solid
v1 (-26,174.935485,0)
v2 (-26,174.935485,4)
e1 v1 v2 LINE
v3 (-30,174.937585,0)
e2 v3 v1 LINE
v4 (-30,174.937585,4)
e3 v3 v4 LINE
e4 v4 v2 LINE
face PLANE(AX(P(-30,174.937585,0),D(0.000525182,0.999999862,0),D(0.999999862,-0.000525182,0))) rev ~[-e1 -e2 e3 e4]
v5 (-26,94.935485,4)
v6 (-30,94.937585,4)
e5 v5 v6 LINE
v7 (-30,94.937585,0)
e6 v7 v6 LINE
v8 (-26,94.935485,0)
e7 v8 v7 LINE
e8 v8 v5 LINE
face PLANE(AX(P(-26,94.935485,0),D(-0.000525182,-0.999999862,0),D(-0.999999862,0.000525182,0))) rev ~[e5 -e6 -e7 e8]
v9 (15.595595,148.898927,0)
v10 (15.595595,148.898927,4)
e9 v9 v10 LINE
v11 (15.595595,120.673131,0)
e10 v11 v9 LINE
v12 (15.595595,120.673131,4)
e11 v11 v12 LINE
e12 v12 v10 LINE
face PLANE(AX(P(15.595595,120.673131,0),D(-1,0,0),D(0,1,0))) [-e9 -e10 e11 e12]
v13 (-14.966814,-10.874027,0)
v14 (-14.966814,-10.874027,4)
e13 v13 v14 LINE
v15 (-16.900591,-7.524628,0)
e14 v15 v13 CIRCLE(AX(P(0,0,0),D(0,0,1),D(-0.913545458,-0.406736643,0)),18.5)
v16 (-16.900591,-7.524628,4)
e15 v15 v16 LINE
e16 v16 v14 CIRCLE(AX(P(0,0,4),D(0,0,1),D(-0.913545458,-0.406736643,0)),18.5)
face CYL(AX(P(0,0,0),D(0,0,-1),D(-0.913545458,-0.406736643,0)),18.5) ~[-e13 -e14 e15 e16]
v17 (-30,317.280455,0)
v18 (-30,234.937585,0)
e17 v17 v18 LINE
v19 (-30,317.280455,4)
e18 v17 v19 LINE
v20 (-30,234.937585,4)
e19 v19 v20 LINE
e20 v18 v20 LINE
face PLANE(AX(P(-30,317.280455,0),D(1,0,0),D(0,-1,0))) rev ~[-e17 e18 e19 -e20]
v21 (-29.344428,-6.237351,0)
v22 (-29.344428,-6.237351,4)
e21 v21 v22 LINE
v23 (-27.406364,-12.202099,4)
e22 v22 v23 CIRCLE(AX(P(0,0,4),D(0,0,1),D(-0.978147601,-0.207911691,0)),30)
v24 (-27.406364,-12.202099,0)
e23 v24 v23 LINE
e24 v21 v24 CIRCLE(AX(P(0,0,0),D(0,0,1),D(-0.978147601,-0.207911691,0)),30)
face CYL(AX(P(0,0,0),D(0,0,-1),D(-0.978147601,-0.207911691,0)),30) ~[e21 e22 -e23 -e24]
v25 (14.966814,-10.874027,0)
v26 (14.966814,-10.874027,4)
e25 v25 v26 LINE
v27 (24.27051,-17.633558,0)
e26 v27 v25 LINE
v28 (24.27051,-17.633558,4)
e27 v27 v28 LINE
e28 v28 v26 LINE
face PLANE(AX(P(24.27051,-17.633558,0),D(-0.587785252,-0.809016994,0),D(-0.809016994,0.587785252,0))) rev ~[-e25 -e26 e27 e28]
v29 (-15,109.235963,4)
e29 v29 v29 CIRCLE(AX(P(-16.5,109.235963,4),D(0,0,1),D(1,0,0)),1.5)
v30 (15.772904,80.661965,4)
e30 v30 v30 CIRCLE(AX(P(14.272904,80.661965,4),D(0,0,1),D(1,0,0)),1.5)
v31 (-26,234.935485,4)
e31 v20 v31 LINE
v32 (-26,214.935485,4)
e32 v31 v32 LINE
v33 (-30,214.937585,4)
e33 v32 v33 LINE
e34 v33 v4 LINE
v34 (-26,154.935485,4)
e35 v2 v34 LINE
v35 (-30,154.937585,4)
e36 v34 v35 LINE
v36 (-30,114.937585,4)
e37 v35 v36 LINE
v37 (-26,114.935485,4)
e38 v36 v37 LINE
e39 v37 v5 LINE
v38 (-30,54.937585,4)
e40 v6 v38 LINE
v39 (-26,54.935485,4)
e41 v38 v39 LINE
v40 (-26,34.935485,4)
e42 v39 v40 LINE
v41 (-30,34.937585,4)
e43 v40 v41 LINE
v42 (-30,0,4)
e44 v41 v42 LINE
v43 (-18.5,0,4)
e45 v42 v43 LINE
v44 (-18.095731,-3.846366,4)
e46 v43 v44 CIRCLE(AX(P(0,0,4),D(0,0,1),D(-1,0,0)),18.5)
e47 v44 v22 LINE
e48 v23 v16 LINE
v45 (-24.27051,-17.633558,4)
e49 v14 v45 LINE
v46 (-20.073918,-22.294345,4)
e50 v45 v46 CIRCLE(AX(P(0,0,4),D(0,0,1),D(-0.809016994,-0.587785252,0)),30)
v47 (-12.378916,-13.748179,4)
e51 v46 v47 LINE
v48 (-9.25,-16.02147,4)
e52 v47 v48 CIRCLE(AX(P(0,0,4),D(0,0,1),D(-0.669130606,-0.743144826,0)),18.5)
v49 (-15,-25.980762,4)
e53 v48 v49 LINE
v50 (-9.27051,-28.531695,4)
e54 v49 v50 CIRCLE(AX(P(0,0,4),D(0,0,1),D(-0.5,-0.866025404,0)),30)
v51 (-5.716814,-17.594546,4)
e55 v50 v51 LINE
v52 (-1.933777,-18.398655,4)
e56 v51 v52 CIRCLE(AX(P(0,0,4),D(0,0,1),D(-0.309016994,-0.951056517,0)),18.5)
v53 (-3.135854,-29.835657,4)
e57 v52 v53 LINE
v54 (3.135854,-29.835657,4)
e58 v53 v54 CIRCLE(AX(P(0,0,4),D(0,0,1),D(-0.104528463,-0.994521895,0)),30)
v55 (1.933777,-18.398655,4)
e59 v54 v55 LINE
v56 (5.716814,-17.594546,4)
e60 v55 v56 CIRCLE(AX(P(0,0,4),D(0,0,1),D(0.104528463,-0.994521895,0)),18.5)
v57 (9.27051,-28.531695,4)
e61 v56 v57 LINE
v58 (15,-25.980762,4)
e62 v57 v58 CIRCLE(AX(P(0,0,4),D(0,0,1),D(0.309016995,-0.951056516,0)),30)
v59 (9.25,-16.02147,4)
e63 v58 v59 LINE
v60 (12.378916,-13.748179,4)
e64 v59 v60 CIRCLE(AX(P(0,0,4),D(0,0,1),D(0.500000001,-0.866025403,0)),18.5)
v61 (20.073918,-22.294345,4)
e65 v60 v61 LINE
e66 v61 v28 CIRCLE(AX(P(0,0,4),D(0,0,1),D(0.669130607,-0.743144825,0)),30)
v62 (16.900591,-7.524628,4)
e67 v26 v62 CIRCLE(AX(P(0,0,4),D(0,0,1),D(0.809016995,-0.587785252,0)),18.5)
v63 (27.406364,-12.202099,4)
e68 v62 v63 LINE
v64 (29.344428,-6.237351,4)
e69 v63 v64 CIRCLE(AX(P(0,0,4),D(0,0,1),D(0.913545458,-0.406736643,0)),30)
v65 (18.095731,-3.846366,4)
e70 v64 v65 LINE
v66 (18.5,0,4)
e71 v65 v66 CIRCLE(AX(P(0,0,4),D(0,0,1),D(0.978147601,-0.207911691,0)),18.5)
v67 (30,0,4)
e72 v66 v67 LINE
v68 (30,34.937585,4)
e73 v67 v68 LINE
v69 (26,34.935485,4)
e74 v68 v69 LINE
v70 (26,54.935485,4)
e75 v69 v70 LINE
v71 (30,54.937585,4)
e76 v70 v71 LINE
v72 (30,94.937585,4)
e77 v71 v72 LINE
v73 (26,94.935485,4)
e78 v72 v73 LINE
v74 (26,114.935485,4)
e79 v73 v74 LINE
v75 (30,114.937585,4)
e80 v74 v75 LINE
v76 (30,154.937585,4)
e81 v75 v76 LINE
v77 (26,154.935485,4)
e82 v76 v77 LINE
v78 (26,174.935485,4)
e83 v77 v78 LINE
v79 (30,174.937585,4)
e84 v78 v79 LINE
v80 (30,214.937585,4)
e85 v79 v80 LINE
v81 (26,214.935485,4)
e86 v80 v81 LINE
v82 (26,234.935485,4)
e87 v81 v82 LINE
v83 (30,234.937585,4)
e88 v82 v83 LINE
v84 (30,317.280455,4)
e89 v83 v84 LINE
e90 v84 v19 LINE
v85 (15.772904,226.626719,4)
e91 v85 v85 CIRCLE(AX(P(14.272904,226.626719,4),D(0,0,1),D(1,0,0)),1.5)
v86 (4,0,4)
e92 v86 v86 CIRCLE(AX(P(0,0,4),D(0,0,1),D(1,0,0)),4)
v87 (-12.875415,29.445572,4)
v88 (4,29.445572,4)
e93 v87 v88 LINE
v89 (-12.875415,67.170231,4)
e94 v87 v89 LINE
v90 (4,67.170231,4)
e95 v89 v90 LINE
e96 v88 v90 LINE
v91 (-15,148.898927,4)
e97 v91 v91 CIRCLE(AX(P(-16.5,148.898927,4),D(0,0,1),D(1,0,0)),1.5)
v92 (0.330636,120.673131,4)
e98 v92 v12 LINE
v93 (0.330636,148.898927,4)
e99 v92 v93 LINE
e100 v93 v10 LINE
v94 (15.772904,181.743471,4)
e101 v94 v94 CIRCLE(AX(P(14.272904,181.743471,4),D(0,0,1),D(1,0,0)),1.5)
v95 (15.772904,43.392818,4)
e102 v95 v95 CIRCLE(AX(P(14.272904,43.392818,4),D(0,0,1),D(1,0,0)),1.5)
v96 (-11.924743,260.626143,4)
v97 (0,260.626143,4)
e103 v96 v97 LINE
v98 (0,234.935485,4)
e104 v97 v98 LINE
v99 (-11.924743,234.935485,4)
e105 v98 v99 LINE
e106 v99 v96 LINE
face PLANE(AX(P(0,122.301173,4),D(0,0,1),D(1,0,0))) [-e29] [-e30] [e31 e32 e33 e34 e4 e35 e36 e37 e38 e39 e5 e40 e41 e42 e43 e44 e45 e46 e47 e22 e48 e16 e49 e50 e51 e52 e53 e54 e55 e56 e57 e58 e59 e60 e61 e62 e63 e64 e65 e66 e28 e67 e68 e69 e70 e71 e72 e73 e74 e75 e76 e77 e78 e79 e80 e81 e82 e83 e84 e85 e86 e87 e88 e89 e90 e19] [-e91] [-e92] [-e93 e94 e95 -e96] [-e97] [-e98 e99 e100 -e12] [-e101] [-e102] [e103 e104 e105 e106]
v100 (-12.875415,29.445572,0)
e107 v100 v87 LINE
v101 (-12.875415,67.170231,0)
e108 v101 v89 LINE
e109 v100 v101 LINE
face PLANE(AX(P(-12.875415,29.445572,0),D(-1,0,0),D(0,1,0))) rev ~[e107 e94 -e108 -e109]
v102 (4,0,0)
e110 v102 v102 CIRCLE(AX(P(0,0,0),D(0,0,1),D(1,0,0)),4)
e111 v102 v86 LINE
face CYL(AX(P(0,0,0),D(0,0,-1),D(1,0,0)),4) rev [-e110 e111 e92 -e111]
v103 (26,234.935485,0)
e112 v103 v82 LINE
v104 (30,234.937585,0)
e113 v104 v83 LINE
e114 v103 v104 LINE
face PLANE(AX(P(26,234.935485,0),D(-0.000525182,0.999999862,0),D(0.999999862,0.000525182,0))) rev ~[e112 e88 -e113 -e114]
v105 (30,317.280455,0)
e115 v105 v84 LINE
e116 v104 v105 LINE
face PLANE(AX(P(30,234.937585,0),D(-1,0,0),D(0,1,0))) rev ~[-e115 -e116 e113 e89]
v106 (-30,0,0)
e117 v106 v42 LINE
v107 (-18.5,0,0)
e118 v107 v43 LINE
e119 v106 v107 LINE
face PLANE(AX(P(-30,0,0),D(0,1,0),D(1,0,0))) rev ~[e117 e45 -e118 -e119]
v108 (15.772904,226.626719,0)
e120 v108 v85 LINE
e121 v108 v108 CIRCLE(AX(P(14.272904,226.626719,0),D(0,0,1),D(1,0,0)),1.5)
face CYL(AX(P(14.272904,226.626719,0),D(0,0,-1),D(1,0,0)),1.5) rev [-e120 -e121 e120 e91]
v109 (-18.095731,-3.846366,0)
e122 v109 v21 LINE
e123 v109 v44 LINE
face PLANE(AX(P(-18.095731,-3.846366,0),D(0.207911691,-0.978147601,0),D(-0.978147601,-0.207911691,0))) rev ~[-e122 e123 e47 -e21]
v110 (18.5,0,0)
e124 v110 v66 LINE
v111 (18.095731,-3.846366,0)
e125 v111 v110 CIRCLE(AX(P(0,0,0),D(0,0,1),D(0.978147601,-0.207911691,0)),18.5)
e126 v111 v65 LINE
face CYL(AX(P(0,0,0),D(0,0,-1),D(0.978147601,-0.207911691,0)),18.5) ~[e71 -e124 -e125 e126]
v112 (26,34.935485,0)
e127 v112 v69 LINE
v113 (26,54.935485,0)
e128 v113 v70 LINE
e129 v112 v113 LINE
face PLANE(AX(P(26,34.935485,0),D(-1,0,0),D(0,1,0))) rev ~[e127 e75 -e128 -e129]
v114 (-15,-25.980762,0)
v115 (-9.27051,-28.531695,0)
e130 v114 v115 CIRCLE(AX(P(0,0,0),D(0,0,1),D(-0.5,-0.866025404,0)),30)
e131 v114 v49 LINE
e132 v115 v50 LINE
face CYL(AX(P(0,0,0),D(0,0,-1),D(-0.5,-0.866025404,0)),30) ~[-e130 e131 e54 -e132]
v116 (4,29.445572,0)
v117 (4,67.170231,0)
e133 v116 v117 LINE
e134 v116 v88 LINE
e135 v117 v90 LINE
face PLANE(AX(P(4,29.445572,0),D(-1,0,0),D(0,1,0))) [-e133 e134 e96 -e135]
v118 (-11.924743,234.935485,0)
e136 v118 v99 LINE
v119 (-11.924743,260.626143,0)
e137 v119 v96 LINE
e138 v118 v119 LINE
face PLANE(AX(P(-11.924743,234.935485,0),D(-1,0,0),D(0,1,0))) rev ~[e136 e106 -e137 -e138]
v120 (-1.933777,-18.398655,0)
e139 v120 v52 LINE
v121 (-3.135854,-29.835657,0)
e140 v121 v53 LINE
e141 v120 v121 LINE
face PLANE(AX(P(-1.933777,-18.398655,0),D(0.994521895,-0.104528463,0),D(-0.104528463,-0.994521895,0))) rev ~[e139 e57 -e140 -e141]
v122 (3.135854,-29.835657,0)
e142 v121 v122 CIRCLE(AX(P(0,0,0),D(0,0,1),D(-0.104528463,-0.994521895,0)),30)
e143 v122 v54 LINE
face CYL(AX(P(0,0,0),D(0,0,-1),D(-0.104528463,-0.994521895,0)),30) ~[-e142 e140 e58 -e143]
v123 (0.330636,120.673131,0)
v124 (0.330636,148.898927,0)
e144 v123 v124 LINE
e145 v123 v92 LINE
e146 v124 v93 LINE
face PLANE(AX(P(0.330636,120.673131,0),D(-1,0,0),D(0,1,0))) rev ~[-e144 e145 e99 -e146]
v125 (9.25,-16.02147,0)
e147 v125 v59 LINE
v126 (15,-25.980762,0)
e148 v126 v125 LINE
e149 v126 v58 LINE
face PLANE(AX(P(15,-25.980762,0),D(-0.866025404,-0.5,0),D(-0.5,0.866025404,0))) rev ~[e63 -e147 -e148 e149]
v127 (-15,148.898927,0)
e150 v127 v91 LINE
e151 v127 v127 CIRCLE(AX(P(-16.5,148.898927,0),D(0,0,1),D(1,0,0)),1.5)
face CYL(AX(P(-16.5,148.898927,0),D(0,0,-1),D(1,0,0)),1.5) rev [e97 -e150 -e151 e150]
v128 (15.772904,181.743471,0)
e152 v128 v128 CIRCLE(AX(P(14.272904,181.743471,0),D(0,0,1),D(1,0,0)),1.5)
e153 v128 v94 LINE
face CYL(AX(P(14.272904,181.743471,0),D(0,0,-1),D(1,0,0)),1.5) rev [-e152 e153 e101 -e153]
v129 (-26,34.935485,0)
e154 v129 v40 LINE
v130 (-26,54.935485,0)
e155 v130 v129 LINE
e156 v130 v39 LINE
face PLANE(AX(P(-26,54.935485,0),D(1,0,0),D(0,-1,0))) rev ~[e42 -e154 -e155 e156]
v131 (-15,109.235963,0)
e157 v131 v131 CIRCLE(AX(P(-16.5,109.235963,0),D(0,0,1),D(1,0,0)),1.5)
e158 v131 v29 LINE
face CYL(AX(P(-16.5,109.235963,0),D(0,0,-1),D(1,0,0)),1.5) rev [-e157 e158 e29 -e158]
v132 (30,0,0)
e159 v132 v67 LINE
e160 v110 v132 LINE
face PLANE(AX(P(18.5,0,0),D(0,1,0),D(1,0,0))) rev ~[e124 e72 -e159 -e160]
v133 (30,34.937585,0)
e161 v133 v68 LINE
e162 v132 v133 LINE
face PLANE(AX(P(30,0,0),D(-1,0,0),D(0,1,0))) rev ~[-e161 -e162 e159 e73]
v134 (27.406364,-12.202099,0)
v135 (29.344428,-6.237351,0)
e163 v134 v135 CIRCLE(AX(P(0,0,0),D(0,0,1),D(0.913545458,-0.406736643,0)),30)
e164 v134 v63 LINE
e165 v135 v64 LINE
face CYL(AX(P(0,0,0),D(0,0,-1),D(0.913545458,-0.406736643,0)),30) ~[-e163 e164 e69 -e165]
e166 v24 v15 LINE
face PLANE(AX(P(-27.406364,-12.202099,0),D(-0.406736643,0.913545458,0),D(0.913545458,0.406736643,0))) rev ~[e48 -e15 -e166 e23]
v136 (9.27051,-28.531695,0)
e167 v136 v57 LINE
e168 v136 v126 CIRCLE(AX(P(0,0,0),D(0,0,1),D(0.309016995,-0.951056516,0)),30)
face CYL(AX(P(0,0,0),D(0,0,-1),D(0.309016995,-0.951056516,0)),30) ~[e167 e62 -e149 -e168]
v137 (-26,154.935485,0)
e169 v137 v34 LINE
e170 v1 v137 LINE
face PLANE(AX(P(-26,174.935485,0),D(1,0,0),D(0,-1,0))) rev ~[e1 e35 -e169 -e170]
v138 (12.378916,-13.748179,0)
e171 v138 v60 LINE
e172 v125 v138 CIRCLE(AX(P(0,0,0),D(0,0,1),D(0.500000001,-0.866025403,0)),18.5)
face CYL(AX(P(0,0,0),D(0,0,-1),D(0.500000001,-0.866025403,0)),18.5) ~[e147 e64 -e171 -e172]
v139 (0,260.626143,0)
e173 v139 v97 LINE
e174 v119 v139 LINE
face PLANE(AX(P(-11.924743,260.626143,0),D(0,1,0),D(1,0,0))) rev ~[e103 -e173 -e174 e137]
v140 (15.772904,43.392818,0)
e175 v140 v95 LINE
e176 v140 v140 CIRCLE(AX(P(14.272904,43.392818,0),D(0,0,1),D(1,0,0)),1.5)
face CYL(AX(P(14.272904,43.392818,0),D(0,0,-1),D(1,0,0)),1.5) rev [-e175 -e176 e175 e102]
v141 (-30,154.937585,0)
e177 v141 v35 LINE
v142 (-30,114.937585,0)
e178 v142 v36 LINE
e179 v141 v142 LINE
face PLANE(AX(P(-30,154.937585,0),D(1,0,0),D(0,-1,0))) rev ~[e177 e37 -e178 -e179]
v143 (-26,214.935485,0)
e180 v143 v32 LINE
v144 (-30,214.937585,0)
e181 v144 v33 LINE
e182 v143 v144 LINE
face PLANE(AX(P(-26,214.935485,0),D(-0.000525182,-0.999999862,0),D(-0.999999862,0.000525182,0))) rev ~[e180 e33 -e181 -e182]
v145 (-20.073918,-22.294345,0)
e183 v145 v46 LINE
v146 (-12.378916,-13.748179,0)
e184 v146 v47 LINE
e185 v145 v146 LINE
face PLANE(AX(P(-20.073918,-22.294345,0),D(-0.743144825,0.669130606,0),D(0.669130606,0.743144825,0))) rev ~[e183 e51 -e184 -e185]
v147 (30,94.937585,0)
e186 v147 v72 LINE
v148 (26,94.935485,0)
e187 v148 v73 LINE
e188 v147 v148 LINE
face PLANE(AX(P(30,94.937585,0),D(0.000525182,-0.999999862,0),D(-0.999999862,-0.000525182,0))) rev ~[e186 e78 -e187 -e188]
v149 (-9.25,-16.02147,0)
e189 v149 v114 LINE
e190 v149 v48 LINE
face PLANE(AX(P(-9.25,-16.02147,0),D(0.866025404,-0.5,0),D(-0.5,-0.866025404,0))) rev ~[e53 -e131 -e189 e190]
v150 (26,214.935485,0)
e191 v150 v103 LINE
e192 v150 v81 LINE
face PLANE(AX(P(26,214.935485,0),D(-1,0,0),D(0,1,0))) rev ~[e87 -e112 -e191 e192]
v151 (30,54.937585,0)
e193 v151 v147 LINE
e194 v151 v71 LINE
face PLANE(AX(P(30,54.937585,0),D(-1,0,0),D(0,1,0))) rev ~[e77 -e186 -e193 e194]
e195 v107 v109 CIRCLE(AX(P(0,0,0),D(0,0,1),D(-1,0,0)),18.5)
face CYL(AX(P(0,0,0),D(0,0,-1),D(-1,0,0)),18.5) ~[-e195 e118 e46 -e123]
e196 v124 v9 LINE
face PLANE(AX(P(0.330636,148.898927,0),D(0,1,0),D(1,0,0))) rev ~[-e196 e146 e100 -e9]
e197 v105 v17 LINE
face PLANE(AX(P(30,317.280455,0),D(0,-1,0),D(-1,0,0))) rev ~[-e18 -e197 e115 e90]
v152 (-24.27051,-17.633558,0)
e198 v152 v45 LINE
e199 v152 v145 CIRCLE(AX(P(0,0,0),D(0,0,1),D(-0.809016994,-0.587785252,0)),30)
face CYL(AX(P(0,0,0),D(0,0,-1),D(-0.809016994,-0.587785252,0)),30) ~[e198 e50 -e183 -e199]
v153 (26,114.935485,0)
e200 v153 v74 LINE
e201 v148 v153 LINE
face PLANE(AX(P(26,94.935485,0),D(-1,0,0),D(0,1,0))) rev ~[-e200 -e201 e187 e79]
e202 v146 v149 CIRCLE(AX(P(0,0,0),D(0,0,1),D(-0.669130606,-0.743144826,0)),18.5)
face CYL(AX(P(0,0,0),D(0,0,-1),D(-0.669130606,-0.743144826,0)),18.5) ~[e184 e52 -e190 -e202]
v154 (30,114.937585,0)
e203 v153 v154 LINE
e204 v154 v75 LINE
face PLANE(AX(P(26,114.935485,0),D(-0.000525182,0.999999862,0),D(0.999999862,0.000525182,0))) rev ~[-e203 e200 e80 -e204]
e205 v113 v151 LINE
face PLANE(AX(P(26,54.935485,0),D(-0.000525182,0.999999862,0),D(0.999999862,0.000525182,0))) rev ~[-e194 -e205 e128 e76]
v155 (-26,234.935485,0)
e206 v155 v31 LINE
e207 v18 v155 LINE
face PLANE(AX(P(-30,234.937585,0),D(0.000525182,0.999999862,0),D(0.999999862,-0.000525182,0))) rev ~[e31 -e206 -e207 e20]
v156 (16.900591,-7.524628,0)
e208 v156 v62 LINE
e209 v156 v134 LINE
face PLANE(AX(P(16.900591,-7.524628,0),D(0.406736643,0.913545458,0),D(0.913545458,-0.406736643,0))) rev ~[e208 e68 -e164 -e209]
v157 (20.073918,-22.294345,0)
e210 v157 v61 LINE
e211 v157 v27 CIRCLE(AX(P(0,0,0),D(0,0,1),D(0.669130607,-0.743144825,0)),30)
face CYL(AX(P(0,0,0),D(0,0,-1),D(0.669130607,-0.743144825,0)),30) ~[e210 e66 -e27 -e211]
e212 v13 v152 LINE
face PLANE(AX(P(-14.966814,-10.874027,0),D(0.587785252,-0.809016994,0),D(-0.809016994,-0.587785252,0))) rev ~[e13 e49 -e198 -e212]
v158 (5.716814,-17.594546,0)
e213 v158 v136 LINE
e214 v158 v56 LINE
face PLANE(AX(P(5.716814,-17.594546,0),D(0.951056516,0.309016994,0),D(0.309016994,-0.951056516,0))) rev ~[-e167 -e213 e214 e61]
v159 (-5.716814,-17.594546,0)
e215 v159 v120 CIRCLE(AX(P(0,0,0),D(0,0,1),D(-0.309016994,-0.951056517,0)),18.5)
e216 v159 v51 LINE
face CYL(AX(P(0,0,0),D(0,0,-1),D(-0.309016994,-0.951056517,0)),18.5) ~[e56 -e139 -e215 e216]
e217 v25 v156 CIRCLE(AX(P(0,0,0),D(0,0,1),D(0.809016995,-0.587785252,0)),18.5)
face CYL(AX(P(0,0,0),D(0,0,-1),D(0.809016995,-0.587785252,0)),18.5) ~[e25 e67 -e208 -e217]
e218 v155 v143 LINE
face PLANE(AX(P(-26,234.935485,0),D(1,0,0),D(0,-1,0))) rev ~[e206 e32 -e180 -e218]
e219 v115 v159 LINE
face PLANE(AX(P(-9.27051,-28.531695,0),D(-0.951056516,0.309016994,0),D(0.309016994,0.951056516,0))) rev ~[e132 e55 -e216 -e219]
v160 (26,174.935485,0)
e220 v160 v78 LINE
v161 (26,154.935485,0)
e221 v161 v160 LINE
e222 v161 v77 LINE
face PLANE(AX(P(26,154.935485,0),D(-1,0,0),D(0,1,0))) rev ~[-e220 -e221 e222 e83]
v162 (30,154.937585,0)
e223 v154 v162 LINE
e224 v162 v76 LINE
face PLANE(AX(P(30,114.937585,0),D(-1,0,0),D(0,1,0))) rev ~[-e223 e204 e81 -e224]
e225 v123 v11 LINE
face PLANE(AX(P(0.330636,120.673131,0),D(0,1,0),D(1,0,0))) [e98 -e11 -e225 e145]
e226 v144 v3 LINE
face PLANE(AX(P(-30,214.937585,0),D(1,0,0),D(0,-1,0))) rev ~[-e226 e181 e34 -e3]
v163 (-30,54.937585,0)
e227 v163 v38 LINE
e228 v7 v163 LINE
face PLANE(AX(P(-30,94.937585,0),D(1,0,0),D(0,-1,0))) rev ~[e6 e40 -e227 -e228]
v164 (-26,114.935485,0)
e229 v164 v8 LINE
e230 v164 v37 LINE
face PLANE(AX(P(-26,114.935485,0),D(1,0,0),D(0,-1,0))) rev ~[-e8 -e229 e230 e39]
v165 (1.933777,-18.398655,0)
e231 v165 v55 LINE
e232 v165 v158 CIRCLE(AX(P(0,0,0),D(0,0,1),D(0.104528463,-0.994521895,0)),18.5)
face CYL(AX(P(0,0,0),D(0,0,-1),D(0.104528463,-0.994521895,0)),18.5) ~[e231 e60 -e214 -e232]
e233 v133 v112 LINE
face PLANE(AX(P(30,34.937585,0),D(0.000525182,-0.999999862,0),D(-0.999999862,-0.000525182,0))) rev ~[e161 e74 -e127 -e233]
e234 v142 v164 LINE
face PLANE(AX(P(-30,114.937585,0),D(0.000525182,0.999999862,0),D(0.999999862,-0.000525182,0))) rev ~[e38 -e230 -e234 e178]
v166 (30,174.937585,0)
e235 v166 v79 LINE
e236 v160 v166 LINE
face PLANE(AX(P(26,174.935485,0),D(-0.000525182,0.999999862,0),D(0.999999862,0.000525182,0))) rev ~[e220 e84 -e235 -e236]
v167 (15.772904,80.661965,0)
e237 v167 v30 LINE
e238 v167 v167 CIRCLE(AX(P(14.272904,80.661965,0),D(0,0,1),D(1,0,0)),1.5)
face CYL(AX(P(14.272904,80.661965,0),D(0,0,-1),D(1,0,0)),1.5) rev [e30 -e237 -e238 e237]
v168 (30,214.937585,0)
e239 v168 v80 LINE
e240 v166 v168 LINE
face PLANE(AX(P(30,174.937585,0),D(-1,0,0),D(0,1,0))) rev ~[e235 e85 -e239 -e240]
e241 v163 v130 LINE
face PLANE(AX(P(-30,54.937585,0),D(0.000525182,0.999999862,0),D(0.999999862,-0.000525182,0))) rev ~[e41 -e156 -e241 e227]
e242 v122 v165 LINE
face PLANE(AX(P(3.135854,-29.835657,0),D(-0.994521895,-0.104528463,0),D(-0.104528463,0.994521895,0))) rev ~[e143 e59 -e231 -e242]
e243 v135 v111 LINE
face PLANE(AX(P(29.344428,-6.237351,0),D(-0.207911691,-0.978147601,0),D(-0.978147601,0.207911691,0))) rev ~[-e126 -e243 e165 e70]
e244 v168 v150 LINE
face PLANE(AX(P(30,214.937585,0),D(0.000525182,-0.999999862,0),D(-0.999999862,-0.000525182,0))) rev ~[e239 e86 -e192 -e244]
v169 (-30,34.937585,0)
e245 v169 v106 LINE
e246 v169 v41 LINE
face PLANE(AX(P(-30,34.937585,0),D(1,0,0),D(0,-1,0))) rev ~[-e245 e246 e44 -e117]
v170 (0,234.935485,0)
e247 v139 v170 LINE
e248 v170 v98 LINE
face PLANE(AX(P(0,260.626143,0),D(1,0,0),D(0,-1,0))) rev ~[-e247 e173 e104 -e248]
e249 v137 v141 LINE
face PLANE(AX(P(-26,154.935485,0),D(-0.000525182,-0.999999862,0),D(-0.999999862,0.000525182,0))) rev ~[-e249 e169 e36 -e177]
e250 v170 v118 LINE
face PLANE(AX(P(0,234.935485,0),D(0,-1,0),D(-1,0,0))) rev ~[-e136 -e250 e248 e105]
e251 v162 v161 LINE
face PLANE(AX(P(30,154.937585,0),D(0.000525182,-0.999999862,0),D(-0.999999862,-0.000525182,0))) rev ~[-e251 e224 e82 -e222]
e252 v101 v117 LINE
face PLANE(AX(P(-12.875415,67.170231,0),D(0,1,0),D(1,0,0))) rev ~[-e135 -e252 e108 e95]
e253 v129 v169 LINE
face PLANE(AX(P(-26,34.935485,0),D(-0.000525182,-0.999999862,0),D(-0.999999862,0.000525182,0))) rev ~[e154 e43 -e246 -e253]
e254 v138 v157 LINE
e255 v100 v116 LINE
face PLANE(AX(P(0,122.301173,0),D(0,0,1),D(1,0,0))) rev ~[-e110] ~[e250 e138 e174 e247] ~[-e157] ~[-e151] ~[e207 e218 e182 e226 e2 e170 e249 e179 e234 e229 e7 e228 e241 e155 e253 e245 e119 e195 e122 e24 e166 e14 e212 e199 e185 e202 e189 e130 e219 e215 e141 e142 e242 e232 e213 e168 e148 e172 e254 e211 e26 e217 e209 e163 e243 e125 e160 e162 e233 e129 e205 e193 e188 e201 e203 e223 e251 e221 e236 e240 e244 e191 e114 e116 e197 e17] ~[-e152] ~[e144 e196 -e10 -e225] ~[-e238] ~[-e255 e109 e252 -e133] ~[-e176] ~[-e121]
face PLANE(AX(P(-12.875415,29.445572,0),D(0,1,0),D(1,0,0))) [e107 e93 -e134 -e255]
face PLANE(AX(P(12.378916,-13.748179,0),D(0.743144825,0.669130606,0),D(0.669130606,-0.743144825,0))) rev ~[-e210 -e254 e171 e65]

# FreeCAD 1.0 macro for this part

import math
import FreeCAD as App
import Part
import Sketcher
from FreeCAD import Vector
Q = App.Units.Quantity


def add_polygon(sketch, points):
    """Adds a closed chain of lines whose ends are joined by coincident constraints."""
    first, n = sketch.GeometryCount, len(points)
    for a, b in zip(points, points[1:] + points[:1]):
        sketch.addGeometry(Part.LineSegment(App.Vector(*a, 0), App.Vector(*b, 0)), False)
    for i in range(n):
        sketch.addConstraint(Sketcher.Constraint("Coincident", first + i, 2, first + (i + 1) % n, 1))

doc = App.newDocument("Part")
body = doc.addObject("PartDesign::Body", "Body")

sketch1 = doc.addObject("Sketcher::SketchObject", "Sketch")
body.addObject(sketch1)
sketch1.AttachmentSupport = (doc.XY_Plane, [""])
sketch1.MapMode = "FlatFace"
sketch1.addGeometry(Part.LineSegment(Vector(-30, 34.9, 0), Vector(-30, 0, 0)), False)
sketch1.addGeometry(Part.LineSegment(Vector(-30, 0, 0), Vector(-18.5, 0, 0)), False)
sketch1.addGeometry(Part.ArcOfCircle(Part.Circle(Vector(0, 0, 0), Vector(0, 0, 1), 18.5), math.radians(-180), math.radians(-168)), False)
sketch1.addGeometry(Part.LineSegment(Vector(-18.1, -3.8, 0), Vector(-29.3, -6.2, 0)), False)
sketch1.addGeometry(Part.ArcOfCircle(Part.Circle(Vector(0, 0, 0), Vector(0, 0, 1), 30), math.radians(-168), math.radians(-156)), False)
sketch1.addGeometry(Part.LineSegment(Vector(-27.4, -12.2, 0), Vector(-16.9, -7.5, 0)), False)
sketch1.addGeometry(Part.ArcOfCircle(Part.Circle(Vector(0, 0, 0), Vector(0, 0, 1), 18.5), math.radians(-156), math.radians(-144)), False)
sketch1.addGeometry(Part.LineSegment(Vector(-15, -10.9, 0), Vector(-24.3, -17.6, 0)), False)
sketch1.addGeometry(Part.ArcOfCircle(Part.Circle(Vector(0, 0, 0), Vector(0, 0, 1), 30), math.radians(-144), math.radians(-132)), False)
sketch1.addGeometry(Part.LineSegment(Vector(-20.1, -22.3, 0), Vector(-12.4, -13.7, 0)), False)
sketch1.addGeometry(Part.ArcOfCircle(Part.Circle(Vector(0, 0, 0), Vector(0, 0, 1), 18.5), math.radians(-132), math.radians(-120)), False)
sketch1.addGeometry(Part.LineSegment(Vector(-9.3, -16, 0), Vector(-15, -26, 0)), False)
sketch1.addGeometry(Part.ArcOfCircle(Part.Circle(Vector(0, 0, 0), Vector(0, 0, 1), 30), math.radians(-120), math.radians(-108)), False)
sketch1.addGeometry(Part.LineSegment(Vector(-9.3, -28.5, 0), Vector(-5.7, -17.6, 0)), False)
sketch1.addGeometry(Part.ArcOfCircle(Part.Circle(Vector(0, 0, 0), Vector(0, 0, 1), 18.5), math.radians(-108), math.radians(-96)), False)
sketch1.addGeometry(Part.LineSegment(Vector(-1.9, -18.4, 0), Vector(-3.1, -29.8, 0)), False)
sketch1.addGeometry(Part.ArcOfCircle(Part.Circle(Vector(0, 0, 0), Vector(0, 0, 1), 30), math.radians(-96), math.radians(-84)), False)
sketch1.addGeometry(Part.LineSegment(Vector(3.1, -29.8, 0), Vector(1.9, -18.4, 0)), False)
sketch1.addGeometry(Part.ArcOfCircle(Part.Circle(Vector(0, 0, 0), Vector(0, 0, 1), 18.5), math.radians(-84), math.radians(-72)), False)
sketch1.addGeometry(Part.LineSegment(Vector(5.7, -17.6, 0), Vector(9.3, -28.5, 0)), False)
sketch1.addGeometry(Part.ArcOfCircle(Part.Circle(Vector(0, 0, 0), Vector(0, 0, 1), 30), math.radians(-72), math.radians(-60)), False)
sketch1.addGeometry(Part.LineSegment(Vector(15, -26, 0), Vector(9.2, -16, 0)), False)
sketch1.addGeometry(Part.ArcOfCircle(Part.Circle(Vector(0, 0, 0), Vector(0, 0, 1), 18.5), math.radians(-60), math.radians(-48)), False)
sketch1.addGeometry(Part.LineSegment(Vector(12.4, -13.7, 0), Vector(20.1, -22.3, 0)), False)
sketch1.addGeometry(Part.ArcOfCircle(Part.Circle(Vector(0, 0, 0), Vector(0, 0, 1), 30), math.radians(-48), math.radians(-36)), False)
sketch1.addGeometry(Part.LineSegment(Vector(24.3, -17.6, 0), Vector(15, -10.9, 0)), False)
sketch1.addGeometry(Part.ArcOfCircle(Part.Circle(Vector(0, 0, 0), Vector(0, 0, 1), 18.5), math.radians(-36), math.radians(-24)), False)
sketch1.addGeometry(Part.LineSegment(Vector(16.9, -7.5, 0), Vector(27.4, -12.2, 0)), False)
sketch1.addGeometry(Part.ArcOfCircle(Part.Circle(Vector(0, 0, 0), Vector(0, 0, 1), 30), math.radians(-24), math.radians(-12)), False)
sketch1.addGeometry(Part.LineSegment(Vector(29.3, -6.2, 0), Vector(18.1, -3.8, 0)), False)
sketch1.addGeometry(Part.ArcOfCircle(Part.Circle(Vector(0, 0, 0), Vector(0, 0, 1), 18.5), math.radians(-12), math.radians(0)), False)
sketch1.addGeometry(Part.LineSegment(Vector(18.5, 0, 0), Vector(30, 0, 0)), False)
sketch1.addGeometry(Part.LineSegment(Vector(30, 0, 0), Vector(30, 34.9, 0)), False)
sketch1.addGeometry(Part.LineSegment(Vector(30, 34.9, 0), Vector(26, 34.9, 0)), False)
sketch1.addGeometry(Part.LineSegment(Vector(26, 34.9, 0), Vector(26, 54.9, 0)), False)
sketch1.addGeometry(Part.LineSegment(Vector(26, 54.9, 0), Vector(30, 54.9, 0)), False)
sketch1.addGeometry(Part.LineSegment(Vector(30, 54.9, 0), Vector(30, 94.9, 0)), False)
sketch1.addGeometry(Part.LineSegment(Vector(30, 94.9, 0), Vector(26, 94.9, 0)), False)
sketch1.addGeometry(Part.LineSegment(Vector(26, 94.9, 0), Vector(26, 114.9, 0)), False)
sketch1.addGeometry(Part.LineSegment(Vector(26, 114.9, 0), Vector(30, 114.9, 0)), False)
sketch1.addGeometry(Part.LineSegment(Vector(30, 114.9, 0), Vector(30, 154.9, 0)), False)
sketch1.addGeometry(Part.LineSegment(Vector(30, 154.9, 0), Vector(26, 154.9, 0)), False)
sketch1.addGeometry(Part.LineSegment(Vector(26, 154.9, 0), Vector(26, 174.9, 0)), False)
sketch1.addGeometry(Part.LineSegment(Vector(26, 174.9, 0), Vector(30, 174.9, 0)), False)
sketch1.addGeometry(Part.LineSegment(Vector(30, 174.9, 0), Vector(30, 214.9, 0)), False)
sketch1.addGeometry(Part.LineSegment(Vector(30, 214.9, 0), Vector(26, 214.9, 0)), False)
sketch1.addGeometry(Part.LineSegment(Vector(26, 214.9, 0), Vector(26, 234.9, 0)), False)
sketch1.addGeometry(Part.LineSegment(Vector(26, 234.9, 0), Vector(30, 234.9, 0)), False)
sketch1.addGeometry(Part.LineSegment(Vector(30, 234.9, 0), Vector(30, 317.3, 0)), False)
sketch1.addGeometry(Part.LineSegment(Vector(30, 317.3, 0), Vector(-30, 317.3, 0)), False)
sketch1.addGeometry(Part.LineSegment(Vector(-30, 317.3, 0), Vector(-30, 234.9, 0)), False)
sketch1.addGeometry(Part.LineSegment(Vector(-30, 234.9, 0), Vector(-26, 234.9, 0)), False)
sketch1.addGeometry(Part.LineSegment(Vector(-26, 234.9, 0), Vector(-26, 214.9, 0)), False)
sketch1.addGeometry(Part.LineSegment(Vector(-26, 214.9, 0), Vector(-30, 214.9, 0)), False)
sketch1.addGeometry(Part.LineSegment(Vector(-30, 214.9, 0), Vector(-30, 174.9, 0)), False)
sketch1.addGeometry(Part.LineSegment(Vector(-30, 174.9, 0), Vector(-26, 174.9, 0)), False)
sketch1.addGeometry(Part.LineSegment(Vector(-26, 174.9, 0), Vector(-26, 154.9, 0)), False)
sketch1.addGeometry(Part.LineSegment(Vector(-26, 154.9, 0), Vector(-30, 154.9, 0)), False)
sketch1.addGeometry(Part.LineSegment(Vector(-30, 154.9, 0), Vector(-30, 114.9, 0)), False)
sketch1.addGeometry(Part.LineSegment(Vector(-30, 114.9, 0), Vector(-26, 114.9, 0)), False)
sketch1.addGeometry(Part.LineSegment(Vector(-26, 114.9, 0), Vector(-26, 94.9, 0)), False)
sketch1.addGeometry(Part.LineSegment(Vector(-26, 94.9, 0), Vector(-30, 94.9, 0)), False)
sketch1.addGeometry(Part.LineSegment(Vector(-30, 94.9, 0), Vector(-30, 54.9, 0)), False)
sketch1.addGeometry(Part.LineSegment(Vector(-30, 54.9, 0), Vector(-26, 54.9, 0)), False)
sketch1.addGeometry(Part.LineSegment(Vector(-26, 54.9, 0), Vector(-26, 34.9, 0)), False)
sketch1.addGeometry(Part.LineSegment(Vector(-26, 34.9, 0), Vector(-30, 34.9, 0)), False)
add_polygon(sketch1, [(4, 29.4), (-12.9, 29.4), (-12.9, 67.2), (4, 67.2)])
sketch1.addGeometry(Part.Circle(Vector(-16.5, 109.2, 0), Vector(0, 0, 1), 1.5), False)
sketch1.addGeometry(Part.Circle(Vector(0, 0, 0), Vector(0, 0, 1), 4), False)
sketch1.addGeometry(Part.Circle(Vector(14.3, 43.4, 0), Vector(0, 0, 1), 1.5), False)
sketch1.addGeometry(Part.Circle(Vector(14.3, 80.7, 0), Vector(0, 0, 1), 1.5), False)
sketch1.addGeometry(Part.Circle(Vector(-16.5, 148.9, 0), Vector(0, 0, 1), 1.5), False)
add_polygon(sketch1, [(-11.9, 234.9), (-11.9, 260.6), (0, 260.6), (0, 234.9)])
add_polygon(sketch1, [(15.6, 120.7), (0.3, 120.7), (0.3, 148.9), (15.6, 148.9)])
sketch1.addGeometry(Part.Circle(Vector(14.3, 181.7, 0), Vector(0, 0, 1), 1.5), False)
sketch1.addGeometry(Part.Circle(Vector(14.3, 226.6, 0), Vector(0, 0, 1), 1.5), False)
sketch1.addConstraint(Sketcher.Constraint("Coincident", 0, 2, 1, 1))
sketch1.addConstraint(Sketcher.Constraint("Coincident", 1, 2, 2, 1))
sketch1.addConstraint(Sketcher.Constraint("Coincident", 2, 2, 3, 1))
sketch1.addConstraint(Sketcher.Constraint("Coincident", 3, 2, 4, 1))
sketch1.addConstraint(Sketcher.Constraint("Coincident", 4, 2, 5, 1))
sketch1.addConstraint(Sketcher.Constraint("Coincident", 5, 2, 6, 1))
sketch1.addConstraint(Sketcher.Constraint("Coincident", 6, 2, 7, 1))
sketch1.addConstraint(Sketcher.Constraint("Coincident", 7, 2, 8, 1))
sketch1.addConstraint(Sketcher.Constraint("Coincident", 8, 2, 9, 1))
sketch1.addConstraint(Sketcher.Constraint("Coincident", 9, 2, 10, 1))
sketch1.addConstraint(Sketcher.Constraint("Coincident", 10, 2, 11, 1))
sketch1.addConstraint(Sketcher.Constraint("Coincident", 11, 2, 12, 1))
sketch1.addConstraint(Sketcher.Constraint("Coincident", 12, 2, 13, 1))
sketch1.addConstraint(Sketcher.Constraint("Coincident", 13, 2, 14, 1))
sketch1.addConstraint(Sketcher.Constraint("Coincident", 14, 2, 15, 1))
sketch1.addConstraint(Sketcher.Constraint("Coincident", 15, 2, 16, 1))
sketch1.addConstraint(Sketcher.Constraint("Coincident", 16, 2, 17, 1))
sketch1.addConstraint(Sketcher.Constraint("Coincident", 17, 2, 18, 1))
sketch1.addConstraint(Sketcher.Constraint("Coincident", 18, 2, 19, 1))
sketch1.addConstraint(Sketcher.Constraint("Coincident", 19, 2, 20, 1))
sketch1.addConstraint(Sketcher.Constraint("Coincident", 20, 2, 21, 1))
sketch1.addConstraint(Sketcher.Constraint("Coincident", 21, 2, 22, 1))
sketch1.addConstraint(Sketcher.Constraint("Coincident", 22, 2, 23, 1))
sketch1.addConstraint(Sketcher.Constraint("Coincident", 23, 2, 24, 1))
sketch1.addConstraint(Sketcher.Constraint("Coincident", 24, 2, 25, 1))
sketch1.addConstraint(Sketcher.Constraint("Coincident", 25, 2, 26, 1))
sketch1.addConstraint(Sketcher.Constraint("Coincident", 26, 2, 27, 1))
sketch1.addConstraint(Sketcher.Constraint("Coincident", 27, 2, 28, 1))
sketch1.addConstraint(Sketcher.Constraint("Coincident", 28, 2, 29, 1))
sketch1.addConstraint(Sketcher.Constraint("Coincident", 29, 2, 30, 1))
sketch1.addConstraint(Sketcher.Constraint("Coincident", 30, 2, 31, 1))
sketch1.addConstraint(Sketcher.Constraint("Coincident", 31, 2, 32, 1))
sketch1.addConstraint(Sketcher.Constraint("Coincident", 32, 2, 33, 1))
sketch1.addConstraint(Sketcher.Constraint("Coincident", 33, 2, 34, 1))
sketch1.addConstraint(Sketcher.Constraint("Coincident", 34, 2, 35, 1))
sketch1.addConstraint(Sketcher.Constraint("Coincident", 35, 2, 36, 1))
sketch1.addConstraint(Sketcher.Constraint("Coincident", 36, 2, 37, 1))
sketch1.addConstraint(Sketcher.Constraint("Coincident", 37, 2, 38, 1))
sketch1.addConstraint(Sketcher.Constraint("Coincident", 38, 2, 39, 1))
sketch1.addConstraint(Sketcher.Constraint("Coincident", 39, 2, 40, 1))
sketch1.addConstraint(Sketcher.Constraint("Coincident", 40, 2, 41, 1))
sketch1.addConstraint(Sketcher.Constraint("Coincident", 41, 2, 42, 1))
sketch1.addConstraint(Sketcher.Constraint("Coincident", 42, 2, 43, 1))
sketch1.addConstraint(Sketcher.Constraint("Coincident", 43, 2, 44, 1))
sketch1.addConstraint(Sketcher.Constraint("Coincident", 44, 2, 45, 1))
sketch1.addConstraint(Sketcher.Constraint("Coincident", 45, 2, 46, 1))
sketch1.addConstraint(Sketcher.Constraint("Coincident", 46, 2, 47, 1))
sketch1.addConstraint(Sketcher.Constraint("Coincident", 47, 2, 48, 1))
sketch1.addConstraint(Sketcher.Constraint("Coincident", 48, 2, 49, 1))
sketch1.addConstraint(Sketcher.Constraint("Coincident", 49, 2, 50, 1))
sketch1.addConstraint(Sketcher.Constraint("Coincident", 50, 2, 51, 1))
sketch1.addConstraint(Sketcher.Constraint("Coincident", 51, 2, 52, 1))
sketch1.addConstraint(Sketcher.Constraint("Coincident", 52, 2, 53, 1))
sketch1.addConstraint(Sketcher.Constraint("Coincident", 53, 2, 54, 1))
sketch1.addConstraint(Sketcher.Constraint("Coincident", 54, 2, 55, 1))
sketch1.addConstraint(Sketcher.Constraint("Coincident", 55, 2, 56, 1))
sketch1.addConstraint(Sketcher.Constraint("Coincident", 56, 2, 57, 1))
sketch1.addConstraint(Sketcher.Constraint("Coincident", 57, 2, 58, 1))
sketch1.addConstraint(Sketcher.Constraint("Coincident", 58, 2, 59, 1))
sketch1.addConstraint(Sketcher.Constraint("Coincident", 59, 2, 60, 1))
sketch1.addConstraint(Sketcher.Constraint("Coincident", 60, 2, 61, 1))
sketch1.addConstraint(Sketcher.Constraint("Coincident", 61, 2, 62, 1))
sketch1.addConstraint(Sketcher.Constraint("Coincident", 62, 2, 63, 1))
sketch1.addConstraint(Sketcher.Constraint("Coincident", 63, 2, 64, 1))
sketch1.addConstraint(Sketcher.Constraint("Coincident", 64, 2, 65, 1))
sketch1.addConstraint(Sketcher.Constraint("Coincident", 65, 2, 0, 1))
sketch1.addConstraint(Sketcher.Constraint("Vertical", 0))
sketch1.addConstraint(Sketcher.Constraint("Horizontal", 1))
sketch1.addConstraint(Sketcher.Constraint("Horizontal", 31))
sketch1.addConstraint(Sketcher.Constraint("Vertical", 32))
sketch1.addConstraint(Sketcher.Constraint("Vertical", 34))
sketch1.addConstraint(Sketcher.Constraint("Vertical", 36))
sketch1.addConstraint(Sketcher.Constraint("Vertical", 38))
sketch1.addConstraint(Sketcher.Constraint("Vertical", 40))
sketch1.addConstraint(Sketcher.Constraint("Vertical", 42))
sketch1.addConstraint(Sketcher.Constraint("Vertical", 44))
sketch1.addConstraint(Sketcher.Constraint("Vertical", 46))
sketch1.addConstraint(Sketcher.Constraint("Vertical", 48))
sketch1.addConstraint(Sketcher.Constraint("Horizontal", 49))
sketch1.addConstraint(Sketcher.Constraint("Vertical", 50))
sketch1.addConstraint(Sketcher.Constraint("Vertical", 52))
sketch1.addConstraint(Sketcher.Constraint("Vertical", 54))
sketch1.addConstraint(Sketcher.Constraint("Vertical", 56))
sketch1.addConstraint(Sketcher.Constraint("Vertical", 58))
sketch1.addConstraint(Sketcher.Constraint("Vertical", 60))
sketch1.addConstraint(Sketcher.Constraint("Vertical", 62))
sketch1.addConstraint(Sketcher.Constraint("Vertical", 64))
sketch1.addConstraint(Sketcher.Constraint("Horizontal", 66))
sketch1.addConstraint(Sketcher.Constraint("Vertical", 67))
sketch1.addConstraint(Sketcher.Constraint("Horizontal", 68))
sketch1.addConstraint(Sketcher.Constraint("Vertical", 69))
sketch1.addConstraint(Sketcher.Constraint("Vertical", 75))
sketch1.addConstraint(Sketcher.Constraint("Horizontal", 76))
sketch1.addConstraint(Sketcher.Constraint("Vertical", 77))
sketch1.addConstraint(Sketcher.Constraint("Horizontal", 78))
sketch1.addConstraint(Sketcher.Constraint("Horizontal", 79))
sketch1.addConstraint(Sketcher.Constraint("Vertical", 80))
sketch1.addConstraint(Sketcher.Constraint("Horizontal", 81))
sketch1.addConstraint(Sketcher.Constraint("Vertical", 82))
sketch1.addConstraint(Sketcher.Constraint("Coincident", 2, 3, -1, 1))
sketch1.addConstraint(Sketcher.Constraint("Coincident", 4, 3, -1, 1))
sketch1.addConstraint(Sketcher.Constraint("Coincident", 6, 3, -1, 1))
sketch1.addConstraint(Sketcher.Constraint("Coincident", 8, 3, -1, 1))
sketch1.addConstraint(Sketcher.Constraint("Coincident", 10, 3, -1, 1))
sketch1.addConstraint(Sketcher.Constraint("Coincident", 12, 3, -1, 1))
sketch1.addConstraint(Sketcher.Constraint("Coincident", 14, 3, -1, 1))
sketch1.addConstraint(Sketcher.Constraint("Coincident", 16, 3, -1, 1))
sketch1.addConstraint(Sketcher.Constraint("Coincident", 18, 3, -1, 1))
sketch1.addConstraint(Sketcher.Constraint("Coincident", 20, 3, -1, 1))
sketch1.addConstraint(Sketcher.Constraint("Coincident", 22, 3, -1, 1))
sketch1.addConstraint(Sketcher.Constraint("Coincident", 24, 3, -1, 1))
sketch1.addConstraint(Sketcher.Constraint("Coincident", 26, 3, -1, 1))
sketch1.addConstraint(Sketcher.Constraint("Coincident", 28, 3, -1, 1))
sketch1.addConstraint(Sketcher.Constraint("Coincident", 30, 3, -1, 1))
sketch1.addConstraint(Sketcher.Constraint("Coincident", 71, 3, -1, 1))
sketch1.addConstraint(Sketcher.Constraint("Equal", 2, 6))
sketch1.addConstraint(Sketcher.Constraint("Equal", 4, 8))
sketch1.addConstraint(Sketcher.Constraint("Equal", 6, 10))
sketch1.addConstraint(Sketcher.Constraint("Equal", 8, 12))
sketch1.addConstraint(Sketcher.Constraint("Equal", 10, 14))
sketch1.addConstraint(Sketcher.Constraint("Equal", 12, 16))
sketch1.addConstraint(Sketcher.Constraint("Equal", 14, 18))
sketch1.addConstraint(Sketcher.Constraint("Equal", 16, 20))
sketch1.addConstraint(Sketcher.Constraint("Equal", 18, 22))
sketch1.addConstraint(Sketcher.Constraint("Equal", 20, 24))
sketch1.addConstraint(Sketcher.Constraint("Equal", 22, 26))
sketch1.addConstraint(Sketcher.Constraint("Equal", 24, 28))
sketch1.addConstraint(Sketcher.Constraint("Equal", 26, 30))
sketch1.addConstraint(Sketcher.Constraint("Equal", 70, 72))
sketch1.addConstraint(Sketcher.Constraint("Equal", 72, 73))
sketch1.addConstraint(Sketcher.Constraint("Equal", 73, 74))
sketch1.addConstraint(Sketcher.Constraint("Equal", 74, 83))
sketch1.addConstraint(Sketcher.Constraint("Equal", 83, 84))
sketch1.addConstraint(Sketcher.Constraint("Symmetric", 0, 2, 31, 2, -1, 1))
sketch1.addConstraint(Sketcher.Constraint("Symmetric", 47, 2, 50, 2, -2))
sketch1.addConstraint(Sketcher.Constraint("Symmetric", 46, 2, 51, 2, -2))
sketch1.addConstraint(Sketcher.Constraint("Symmetric", 44, 2, 53, 2, -2))
sketch1.addConstraint(Sketcher.Constraint("Symmetric", 42, 2, 55, 2, -2))
sketch1.addConstraint(Sketcher.Constraint("Symmetric", 40, 2, 57, 2, -2))
sketch1.addConstraint(Sketcher.Constraint("Symmetric", 38, 2, 59, 2, -2))
sketch1.addConstraint(Sketcher.Constraint("Symmetric", 36, 2, 61, 2, -2))
sketch1.addConstraint(Sketcher.Constraint("Symmetric", 34, 2, 63, 2, -2))
sketch1.addConstraint(Sketcher.Constraint("PointOnObject", 0, 2, -1))
sketch1.addConstraint(Sketcher.Constraint("PointOnObject", 76, 2, -2))
sketch1.addConstraint(Sketcher.Constraint("Parallel", 33, 35))
sketch1.addConstraint(Sketcher.Constraint("Parallel", 35, 37))
sketch1.addConstraint(Sketcher.Constraint("Parallel", 37, 39))
sketch1.addConstraint(Sketcher.Constraint("Parallel", 39, 41))
sketch1.addConstraint(Sketcher.Constraint("Parallel", 41, 43))
sketch1.addConstraint(Sketcher.Constraint("Parallel", 43, 45))
sketch1.addConstraint(Sketcher.Constraint("Parallel", 45, 47))
sketch1.addConstraint(Sketcher.Constraint("Parallel", 51, 53))
sketch1.addConstraint(Sketcher.Constraint("Parallel", 53, 55))
sketch1.addConstraint(Sketcher.Constraint("Parallel", 55, 57))
sketch1.addConstraint(Sketcher.Constraint("Parallel", 57, 59))
sketch1.addConstraint(Sketcher.Constraint("Parallel", 59, 61))
sketch1.addConstraint(Sketcher.Constraint("Parallel", 61, 63))
sketch1.addConstraint(Sketcher.Constraint("Parallel", 63, 65))
sketch1.addConstraint(Sketcher.Constraint("Horizontal", 15, 2, 16, 2))
sketch1.addConstraint(Sketcher.Constraint("Horizontal", 14, 2, 17, 2))
sketch1.addConstraint(Sketcher.Constraint("Horizontal", 13, 2, 18, 2))
sketch1.addConstraint(Sketcher.Constraint("Horizontal", 12, 2, 19, 2))
sketch1.addConstraint(Sketcher.Constraint("Horizontal", 11, 2, 20, 2))
sketch1.addConstraint(Sketcher.Constraint("Horizontal", 10, 2, 21, 2))
sketch1.addConstraint(Sketcher.Constraint("Horizontal", 9, 2, 22, 2))
sketch1.addConstraint(Sketcher.Constraint("Horizontal", 8, 2, 23, 2))
sketch1.addConstraint(Sketcher.Constraint("Horizontal", 7, 2, 24, 2))
sketch1.addConstraint(Sketcher.Constraint("Horizontal", 6, 2, 25, 2))
sketch1.addConstraint(Sketcher.Constraint("Horizontal", 5, 2, 26, 2))
sketch1.addConstraint(Sketcher.Constraint("Horizontal", 4, 2, 27, 2))
sketch1.addConstraint(Sketcher.Constraint("Horizontal", 3, 2, 28, 2))
sketch1.addConstraint(Sketcher.Constraint("Horizontal", 2, 2, 29, 2))
sketch1.addConstraint(Sketcher.Constraint("Horizontal", 33, 2, 64, 2))
sketch1.addConstraint(Sketcher.Constraint("Horizontal", 51, 2, 77, 2))
sketch1.addConstraint(Sketcher.Constraint("Horizontal", 74, 3, 80, 2))
sketch1.addConstraint(Sketcher.Constraint("Vertical", 72, 3, 73, 3))
sketch1.addConstraint(Sketcher.Constraint("Vertical", 70, 3, 74, 3))
sketch1.addConstraint(Sketcher.Constraint("Vertical", 73, 3, 83, 3))
sketch1.addConstraint(Sketcher.Constraint("Vertical", 83, 3, 84, 3))
sketch1.addConstraint(Sketcher.Constraint("Vertical", 32, 2, 35, 2))
sketch1.addConstraint(Sketcher.Constraint("Vertical", 34, 2, 37, 2))
sketch1.addConstraint(Sketcher.Constraint("Vertical", 36, 2, 39, 2))
sketch1.addConstraint(Sketcher.Constraint("Vertical", 38, 2, 41, 2))
sketch1.addConstraint(Sketcher.Constraint("Vertical", 40, 2, 43, 2))
sketch1.addConstraint(Sketcher.Constraint("Vertical", 42, 2, 45, 2))
sketch1.addConstraint(Sketcher.Constraint("Vertical", 44, 2, 47, 2))
sketch1.addConstraint(Sketcher.Constraint("Equal", 34, 38))
sketch1.addConstraint(Sketcher.Constraint("Equal", 36, 40))
sketch1.addConstraint(Sketcher.Constraint("Equal", 38, 42))
sketch1.addConstraint(Sketcher.Constraint("Equal", 40, 44))
sketch1.addConstraint(Sketcher.Constraint("Equal", 42, 46))
sketch1.addConstraint(Sketcher.Constraint("Diameter", 70, Q("3 mm")))
sketch1.addConstraint(Sketcher.Constraint("Diameter", 71, Q("8 mm")))
sketch1.addConstraint(Sketcher.Constraint("Radius", 4, Q("30 mm")))
sketch1.addConstraint(Sketcher.Constraint("Radius", 2, Q("18.5 mm")))
sketch1.addConstraint(Sketcher.Constraint("DistanceX", 49, 2, 49, 1, Q("60 mm")))
sketch1.addConstraint(Sketcher.Constraint("DistanceY", 34, 1, 34, 2, Q("20 mm")))
sketch1.addConstraint(Sketcher.Constraint("DistanceY", 36, 1, 36, 2, Q("40 mm")))
sketch1.addConstraint(Sketcher.Constraint("Angle", 3, Q("-168 deg")))
sketch1.addConstraint(Sketcher.Constraint("Angle", 5, Q("24 deg")))
sketch1.addConstraint(Sketcher.Constraint("Angle", 7, Q("-144 deg")))
sketch1.addConstraint(Sketcher.Constraint("Angle", 9, Q("48 deg")))
sketch1.addConstraint(Sketcher.Constraint("Angle", 11, Q("-120 deg")))
sketch1.addConstraint(Sketcher.Constraint("Angle", 13, Q("72 deg")))
sketch1.addConstraint(Sketcher.Constraint("Angle", 15, Q("-96 deg")))
sketch1.addConstraint(Sketcher.Constraint("Distance", 33, Q("4.000001 mm")))
sketch1.addConstraint(Sketcher.Constraint("DistanceX", 11, 2, -1, 1, Q("15 mm")))
sketch1.addConstraint(Sketcher.Constraint("DistanceX", -1, 1, 68, 2, Q("4 mm")))
sketch1.addConstraint(Sketcher.Constraint("DistanceX", 70, 3, -1, 1, Q("16.5 mm")))
sketch1.addConstraint(Sketcher.Constraint("DistanceX", 79, 2, 79, 1, Q("15.264959 mm")))
sketch1.addConstraint(Sketcher.Constraint("DistanceY", 48, 1, 48, 2, Q("82.34287 mm")))
sketch1.addConstraint(Sketcher.Constraint("DistanceY", 67, 1, 67, 2, Q("37.724659 mm")))
sketch1.addConstraint(Sketcher.Constraint("DistanceY", 75, 1, 75, 2, Q("25.690658 mm")))
sketch1.addConstraint(Sketcher.Constraint("DistanceY", 4, 2, -1, 1, Q("12.202099 mm")))
sketch1.addConstraint(Sketcher.Constraint("DistanceX", 66, 2, 66, 1, Q("16.875415 mm")))
sketch1.addConstraint(Sketcher.Constraint("DistanceX", 76, 1, 76, 2, Q("11.924743 mm")))
sketch1.addConstraint(Sketcher.Constraint("DistanceY", 0, 2, 0, 1, Q("34.937585 mm")))
sketch1.addConstraint(Sketcher.Constraint("DistanceY", 80, 1, 80, 2, Q("28.225796 mm")))
sketch1.addConstraint(Sketcher.Constraint("DistanceY", -1, 1, 83, 3, Q("181.743471 mm")))
sketch1.addConstraint(Sketcher.Constraint("DistanceY", -1, 1, 84, 3, Q("226.626719 mm")))
sketch1.addConstraint(Sketcher.Constraint("DistanceX", 2, 2, -1, 1, Q("18.095731 mm")))
sketch1.addConstraint(Sketcher.Constraint("DistanceX", 7, 2, -1, 1, Q("24.27051 mm")))
sketch1.addConstraint(Sketcher.Constraint("DistanceX", 8, 2, -1, 1, Q("20.073918 mm")))
sketch1.addConstraint(Sketcher.Constraint("DistanceX", 12, 2, -1, 1, Q("9.27051 mm")))
sketch1.addConstraint(Sketcher.Constraint("DistanceY", -1, 1, 66, 2, Q("29.445572 mm")))
sketch1.addConstraint(Sketcher.Constraint("DistanceY", -1, 1, 79, 2, Q("120.673131 mm")))
sketch1.addConstraint(Sketcher.Constraint("DistanceY", -1, 1, 70, 3, Q("109.235963 mm")))
sketch1.addConstraint(Sketcher.Constraint("DistanceX", -1, 1, 72, 3, Q("14.272904 mm")))
sketch1.addConstraint(Sketcher.Constraint("DistanceY", -1, 1, 72, 3, Q("43.392818 mm")))
sketch1.addConstraint(Sketcher.Constraint("DistanceY", -1, 1, 73, 3, Q("80.661965 mm")))
sketch1.addConstraint(Sketcher.Constraint("DistanceX", 14, 2, -1, 1, Q("1.933777 mm")))
sketch1.addConstraint(Sketcher.Constraint("DistanceY", -1, 1, 33, 2, Q("34.935485 mm")))
sketch1.addConstraint(Sketcher.Constraint("DistanceX", -1, 1, 79, 2, Q("0.330636 mm")))
pad1 = doc.addObject("PartDesign::Pad", "Pad")
body.addObject(pad1)
pad1.Profile = sketch1
pad1.Length = 4

doc.recompute()
